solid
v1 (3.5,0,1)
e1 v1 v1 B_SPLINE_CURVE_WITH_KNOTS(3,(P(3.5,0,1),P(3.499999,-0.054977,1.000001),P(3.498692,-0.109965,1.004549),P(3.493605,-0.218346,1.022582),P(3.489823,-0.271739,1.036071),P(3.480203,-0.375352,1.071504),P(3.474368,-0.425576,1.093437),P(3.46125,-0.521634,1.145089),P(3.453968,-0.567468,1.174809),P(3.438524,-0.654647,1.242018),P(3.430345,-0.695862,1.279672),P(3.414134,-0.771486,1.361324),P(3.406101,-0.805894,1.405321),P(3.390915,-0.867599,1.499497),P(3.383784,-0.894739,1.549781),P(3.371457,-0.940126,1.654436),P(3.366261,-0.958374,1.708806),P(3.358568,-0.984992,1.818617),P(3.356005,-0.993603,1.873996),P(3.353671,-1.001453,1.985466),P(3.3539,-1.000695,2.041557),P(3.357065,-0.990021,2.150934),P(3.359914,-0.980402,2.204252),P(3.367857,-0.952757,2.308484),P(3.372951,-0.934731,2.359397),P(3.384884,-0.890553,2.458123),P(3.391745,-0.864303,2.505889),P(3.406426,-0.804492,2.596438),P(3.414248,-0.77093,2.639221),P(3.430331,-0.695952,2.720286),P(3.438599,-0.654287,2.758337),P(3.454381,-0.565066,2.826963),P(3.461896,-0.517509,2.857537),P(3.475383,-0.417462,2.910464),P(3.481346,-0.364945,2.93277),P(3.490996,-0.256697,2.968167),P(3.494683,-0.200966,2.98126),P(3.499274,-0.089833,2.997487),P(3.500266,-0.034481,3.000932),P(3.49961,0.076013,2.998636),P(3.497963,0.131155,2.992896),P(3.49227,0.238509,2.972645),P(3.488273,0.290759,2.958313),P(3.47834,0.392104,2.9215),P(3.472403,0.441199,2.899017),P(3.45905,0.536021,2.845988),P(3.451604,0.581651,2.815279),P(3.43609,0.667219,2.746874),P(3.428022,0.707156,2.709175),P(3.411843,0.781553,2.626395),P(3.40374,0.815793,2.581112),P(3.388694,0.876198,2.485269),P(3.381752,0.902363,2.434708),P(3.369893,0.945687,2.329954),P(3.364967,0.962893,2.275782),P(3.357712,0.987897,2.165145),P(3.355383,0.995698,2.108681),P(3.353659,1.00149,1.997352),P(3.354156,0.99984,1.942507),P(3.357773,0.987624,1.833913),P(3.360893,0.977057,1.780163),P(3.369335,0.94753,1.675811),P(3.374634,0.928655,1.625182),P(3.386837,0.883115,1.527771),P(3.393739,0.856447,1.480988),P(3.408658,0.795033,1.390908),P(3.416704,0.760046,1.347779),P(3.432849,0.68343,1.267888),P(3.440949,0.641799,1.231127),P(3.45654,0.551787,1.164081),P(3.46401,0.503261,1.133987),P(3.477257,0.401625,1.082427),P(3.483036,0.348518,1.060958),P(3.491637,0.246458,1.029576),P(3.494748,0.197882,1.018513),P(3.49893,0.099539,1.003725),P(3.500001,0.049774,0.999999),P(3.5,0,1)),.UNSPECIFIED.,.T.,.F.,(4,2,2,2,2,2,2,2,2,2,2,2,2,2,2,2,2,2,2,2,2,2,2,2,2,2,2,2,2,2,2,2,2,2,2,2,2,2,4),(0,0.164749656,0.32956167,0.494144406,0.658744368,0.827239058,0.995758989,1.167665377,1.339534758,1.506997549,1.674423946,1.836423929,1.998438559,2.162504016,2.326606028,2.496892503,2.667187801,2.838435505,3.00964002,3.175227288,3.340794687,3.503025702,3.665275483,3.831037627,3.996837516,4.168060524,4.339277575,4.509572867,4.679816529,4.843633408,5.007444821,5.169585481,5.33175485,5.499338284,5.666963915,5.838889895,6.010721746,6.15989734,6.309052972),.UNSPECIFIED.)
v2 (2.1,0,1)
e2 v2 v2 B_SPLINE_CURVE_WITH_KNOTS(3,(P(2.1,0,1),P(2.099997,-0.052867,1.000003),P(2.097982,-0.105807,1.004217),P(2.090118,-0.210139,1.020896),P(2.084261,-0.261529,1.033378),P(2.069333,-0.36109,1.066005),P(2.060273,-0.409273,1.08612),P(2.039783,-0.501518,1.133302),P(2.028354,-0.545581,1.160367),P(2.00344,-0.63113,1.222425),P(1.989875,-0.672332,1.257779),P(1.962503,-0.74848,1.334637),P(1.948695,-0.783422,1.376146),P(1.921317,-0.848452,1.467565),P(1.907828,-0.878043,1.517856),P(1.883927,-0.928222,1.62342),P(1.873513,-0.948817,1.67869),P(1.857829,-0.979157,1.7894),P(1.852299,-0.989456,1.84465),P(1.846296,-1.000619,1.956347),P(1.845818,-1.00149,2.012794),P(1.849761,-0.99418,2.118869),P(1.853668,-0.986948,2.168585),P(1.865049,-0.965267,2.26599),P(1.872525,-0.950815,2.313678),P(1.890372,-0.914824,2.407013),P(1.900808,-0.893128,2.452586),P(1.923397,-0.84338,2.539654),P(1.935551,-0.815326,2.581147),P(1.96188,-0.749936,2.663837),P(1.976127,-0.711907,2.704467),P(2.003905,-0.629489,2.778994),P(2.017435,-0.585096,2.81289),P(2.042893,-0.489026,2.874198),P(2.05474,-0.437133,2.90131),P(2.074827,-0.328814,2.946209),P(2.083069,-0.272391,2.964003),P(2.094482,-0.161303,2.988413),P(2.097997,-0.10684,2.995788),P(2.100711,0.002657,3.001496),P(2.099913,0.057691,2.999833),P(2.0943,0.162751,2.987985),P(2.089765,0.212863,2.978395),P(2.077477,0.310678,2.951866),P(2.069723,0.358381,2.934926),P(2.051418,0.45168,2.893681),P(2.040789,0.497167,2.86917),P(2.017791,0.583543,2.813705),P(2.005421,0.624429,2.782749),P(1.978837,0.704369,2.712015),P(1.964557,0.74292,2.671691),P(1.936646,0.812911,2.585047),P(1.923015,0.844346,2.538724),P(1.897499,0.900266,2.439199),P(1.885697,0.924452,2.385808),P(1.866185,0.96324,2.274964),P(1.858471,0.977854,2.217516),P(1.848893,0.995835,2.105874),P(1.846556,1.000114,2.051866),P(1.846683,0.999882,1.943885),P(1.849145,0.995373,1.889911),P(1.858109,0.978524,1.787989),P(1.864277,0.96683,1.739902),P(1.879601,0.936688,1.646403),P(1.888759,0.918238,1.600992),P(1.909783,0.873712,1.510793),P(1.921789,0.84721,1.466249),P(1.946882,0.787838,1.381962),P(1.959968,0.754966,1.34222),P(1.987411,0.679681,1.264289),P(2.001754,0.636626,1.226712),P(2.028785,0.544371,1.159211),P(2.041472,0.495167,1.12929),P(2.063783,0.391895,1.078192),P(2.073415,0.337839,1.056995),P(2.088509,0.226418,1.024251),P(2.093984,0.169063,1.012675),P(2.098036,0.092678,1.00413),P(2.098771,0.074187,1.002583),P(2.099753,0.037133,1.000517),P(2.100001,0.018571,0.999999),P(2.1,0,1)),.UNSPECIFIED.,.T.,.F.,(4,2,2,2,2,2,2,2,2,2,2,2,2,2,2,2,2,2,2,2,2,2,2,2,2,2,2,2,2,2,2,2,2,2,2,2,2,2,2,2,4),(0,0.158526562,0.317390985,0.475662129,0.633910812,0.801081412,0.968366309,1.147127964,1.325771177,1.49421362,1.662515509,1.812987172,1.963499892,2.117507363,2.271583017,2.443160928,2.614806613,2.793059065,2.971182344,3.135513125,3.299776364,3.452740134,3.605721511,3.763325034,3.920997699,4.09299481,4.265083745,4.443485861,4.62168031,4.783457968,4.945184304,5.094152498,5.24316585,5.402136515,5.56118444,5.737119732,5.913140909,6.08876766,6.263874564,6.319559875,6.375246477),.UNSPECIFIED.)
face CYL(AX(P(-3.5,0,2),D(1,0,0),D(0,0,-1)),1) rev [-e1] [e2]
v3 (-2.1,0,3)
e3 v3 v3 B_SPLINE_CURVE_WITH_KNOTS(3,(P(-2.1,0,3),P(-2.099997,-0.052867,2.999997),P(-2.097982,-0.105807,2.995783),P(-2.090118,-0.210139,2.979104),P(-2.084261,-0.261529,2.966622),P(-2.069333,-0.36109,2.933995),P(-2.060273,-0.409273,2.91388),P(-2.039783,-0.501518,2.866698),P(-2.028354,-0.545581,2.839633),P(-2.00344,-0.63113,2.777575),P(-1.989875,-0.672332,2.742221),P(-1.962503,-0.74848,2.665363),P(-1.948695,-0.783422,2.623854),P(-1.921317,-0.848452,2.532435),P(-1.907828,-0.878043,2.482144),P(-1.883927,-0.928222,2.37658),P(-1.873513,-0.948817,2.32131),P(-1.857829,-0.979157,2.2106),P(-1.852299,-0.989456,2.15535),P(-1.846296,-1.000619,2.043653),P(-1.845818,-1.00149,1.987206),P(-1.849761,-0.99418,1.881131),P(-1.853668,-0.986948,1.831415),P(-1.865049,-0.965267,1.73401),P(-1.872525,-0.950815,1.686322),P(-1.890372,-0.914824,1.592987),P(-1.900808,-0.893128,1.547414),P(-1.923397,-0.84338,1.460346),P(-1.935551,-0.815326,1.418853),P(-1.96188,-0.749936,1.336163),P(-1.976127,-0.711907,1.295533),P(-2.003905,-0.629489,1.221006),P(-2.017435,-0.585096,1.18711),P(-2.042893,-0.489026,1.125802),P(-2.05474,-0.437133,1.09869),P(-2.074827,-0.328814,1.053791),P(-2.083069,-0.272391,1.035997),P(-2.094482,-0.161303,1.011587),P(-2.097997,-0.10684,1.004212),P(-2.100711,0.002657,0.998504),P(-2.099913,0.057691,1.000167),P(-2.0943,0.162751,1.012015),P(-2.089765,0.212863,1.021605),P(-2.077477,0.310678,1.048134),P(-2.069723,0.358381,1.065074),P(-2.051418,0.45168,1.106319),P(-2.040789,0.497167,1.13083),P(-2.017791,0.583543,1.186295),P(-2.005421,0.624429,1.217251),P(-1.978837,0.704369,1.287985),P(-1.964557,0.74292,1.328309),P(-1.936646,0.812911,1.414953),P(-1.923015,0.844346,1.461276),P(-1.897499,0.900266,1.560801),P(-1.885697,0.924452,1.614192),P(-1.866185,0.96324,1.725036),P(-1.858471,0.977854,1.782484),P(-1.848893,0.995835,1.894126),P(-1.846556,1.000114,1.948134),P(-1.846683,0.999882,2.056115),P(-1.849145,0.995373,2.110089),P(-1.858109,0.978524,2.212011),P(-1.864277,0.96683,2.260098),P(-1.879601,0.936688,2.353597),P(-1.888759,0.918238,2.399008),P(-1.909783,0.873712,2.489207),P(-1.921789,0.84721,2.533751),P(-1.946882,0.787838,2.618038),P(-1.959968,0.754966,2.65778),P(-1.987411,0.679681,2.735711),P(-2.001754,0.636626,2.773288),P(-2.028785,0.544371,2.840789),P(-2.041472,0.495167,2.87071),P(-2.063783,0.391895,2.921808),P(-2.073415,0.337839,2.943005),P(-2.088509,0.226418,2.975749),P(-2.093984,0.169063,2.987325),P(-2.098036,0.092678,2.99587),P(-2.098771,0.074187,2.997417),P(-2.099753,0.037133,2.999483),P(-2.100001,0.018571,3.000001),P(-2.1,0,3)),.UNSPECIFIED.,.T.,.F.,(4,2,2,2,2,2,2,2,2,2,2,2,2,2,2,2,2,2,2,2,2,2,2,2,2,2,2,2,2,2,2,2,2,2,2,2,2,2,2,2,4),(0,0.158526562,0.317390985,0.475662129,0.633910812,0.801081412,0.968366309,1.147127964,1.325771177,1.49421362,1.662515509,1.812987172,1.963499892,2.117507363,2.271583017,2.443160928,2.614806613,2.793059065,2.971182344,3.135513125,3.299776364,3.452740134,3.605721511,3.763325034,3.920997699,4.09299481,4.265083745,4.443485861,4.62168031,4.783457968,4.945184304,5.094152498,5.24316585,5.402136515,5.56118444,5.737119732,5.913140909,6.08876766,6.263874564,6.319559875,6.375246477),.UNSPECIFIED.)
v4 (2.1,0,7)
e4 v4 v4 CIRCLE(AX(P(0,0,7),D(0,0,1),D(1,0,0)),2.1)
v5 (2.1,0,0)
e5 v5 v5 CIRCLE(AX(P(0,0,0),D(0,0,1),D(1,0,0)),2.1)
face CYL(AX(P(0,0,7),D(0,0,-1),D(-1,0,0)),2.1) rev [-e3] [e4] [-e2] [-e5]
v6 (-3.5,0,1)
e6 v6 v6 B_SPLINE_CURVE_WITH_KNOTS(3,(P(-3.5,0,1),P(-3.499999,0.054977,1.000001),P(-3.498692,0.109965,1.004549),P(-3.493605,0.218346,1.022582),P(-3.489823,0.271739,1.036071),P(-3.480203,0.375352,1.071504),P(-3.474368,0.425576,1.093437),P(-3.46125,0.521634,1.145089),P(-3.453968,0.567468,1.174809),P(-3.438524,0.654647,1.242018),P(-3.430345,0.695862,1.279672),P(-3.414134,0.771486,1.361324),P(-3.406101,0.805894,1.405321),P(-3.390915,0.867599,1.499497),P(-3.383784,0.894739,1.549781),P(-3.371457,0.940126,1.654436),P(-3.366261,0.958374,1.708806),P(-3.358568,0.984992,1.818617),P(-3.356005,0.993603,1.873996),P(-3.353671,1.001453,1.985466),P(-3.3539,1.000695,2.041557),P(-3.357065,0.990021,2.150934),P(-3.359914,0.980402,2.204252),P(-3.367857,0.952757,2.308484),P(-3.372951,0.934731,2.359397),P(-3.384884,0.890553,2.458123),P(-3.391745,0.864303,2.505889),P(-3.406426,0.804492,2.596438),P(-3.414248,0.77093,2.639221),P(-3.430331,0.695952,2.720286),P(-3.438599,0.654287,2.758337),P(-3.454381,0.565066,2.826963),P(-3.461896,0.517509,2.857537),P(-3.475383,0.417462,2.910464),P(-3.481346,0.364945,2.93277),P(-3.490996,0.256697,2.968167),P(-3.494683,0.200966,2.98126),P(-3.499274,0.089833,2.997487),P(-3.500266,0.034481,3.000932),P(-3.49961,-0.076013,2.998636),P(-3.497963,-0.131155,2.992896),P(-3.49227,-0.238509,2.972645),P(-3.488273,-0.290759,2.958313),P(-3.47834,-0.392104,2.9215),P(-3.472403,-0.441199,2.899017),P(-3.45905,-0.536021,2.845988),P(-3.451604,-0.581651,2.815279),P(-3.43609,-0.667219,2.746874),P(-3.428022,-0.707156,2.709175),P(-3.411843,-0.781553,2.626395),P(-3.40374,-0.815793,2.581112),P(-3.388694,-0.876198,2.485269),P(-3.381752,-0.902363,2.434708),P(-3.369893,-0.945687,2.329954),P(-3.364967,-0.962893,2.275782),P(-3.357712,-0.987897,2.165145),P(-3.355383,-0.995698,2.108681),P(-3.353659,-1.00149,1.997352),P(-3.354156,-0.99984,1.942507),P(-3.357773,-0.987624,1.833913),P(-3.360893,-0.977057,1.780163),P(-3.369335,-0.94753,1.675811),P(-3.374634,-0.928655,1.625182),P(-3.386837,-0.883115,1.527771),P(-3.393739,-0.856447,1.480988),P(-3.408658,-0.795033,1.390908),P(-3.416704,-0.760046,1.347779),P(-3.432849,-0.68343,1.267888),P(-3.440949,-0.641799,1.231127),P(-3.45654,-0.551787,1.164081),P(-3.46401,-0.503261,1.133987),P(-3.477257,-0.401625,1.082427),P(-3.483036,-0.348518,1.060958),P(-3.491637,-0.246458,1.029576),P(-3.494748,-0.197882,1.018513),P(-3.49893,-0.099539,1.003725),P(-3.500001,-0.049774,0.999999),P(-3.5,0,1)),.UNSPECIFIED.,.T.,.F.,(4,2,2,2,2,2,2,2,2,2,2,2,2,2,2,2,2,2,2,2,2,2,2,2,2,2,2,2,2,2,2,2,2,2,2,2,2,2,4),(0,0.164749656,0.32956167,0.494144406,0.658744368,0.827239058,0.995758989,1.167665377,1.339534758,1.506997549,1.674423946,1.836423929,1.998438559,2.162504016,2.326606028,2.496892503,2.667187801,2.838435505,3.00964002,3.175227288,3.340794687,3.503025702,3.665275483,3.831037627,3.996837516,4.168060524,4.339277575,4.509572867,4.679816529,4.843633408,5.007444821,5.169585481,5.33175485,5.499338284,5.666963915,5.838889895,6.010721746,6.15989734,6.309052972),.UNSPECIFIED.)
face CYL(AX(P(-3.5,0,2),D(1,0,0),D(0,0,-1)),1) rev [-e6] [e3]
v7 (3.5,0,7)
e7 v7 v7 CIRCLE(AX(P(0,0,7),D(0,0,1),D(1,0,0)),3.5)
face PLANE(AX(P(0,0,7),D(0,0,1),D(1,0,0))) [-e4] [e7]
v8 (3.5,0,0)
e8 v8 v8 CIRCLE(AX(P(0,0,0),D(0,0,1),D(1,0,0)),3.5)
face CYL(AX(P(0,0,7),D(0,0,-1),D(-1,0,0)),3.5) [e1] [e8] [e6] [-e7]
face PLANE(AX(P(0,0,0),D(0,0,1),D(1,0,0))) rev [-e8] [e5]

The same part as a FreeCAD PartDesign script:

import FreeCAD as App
import Part
import Sketcher

doc = App.newDocument("Part")
body = doc.addObject("PartDesign::Body", "Body")

# Sketch on XY plane
sketch1 = body.newObject("Sketcher::SketchObject", "Sketch")
sketch1.AttachmentSupport = (doc.getObject("XY_Plane"), [""])
sketch1.MapMode = "FlatFace"
sketch1.addGeometry([
    Part.Circle(App.Vector(0, 0, 0), App.Vector(0, 0, 1), 3.5),
    Part.Circle(App.Vector(0, 0, 0), App.Vector(0, 0, 1), 2.1),
], False)
sketch1.addConstraint([
    Sketcher.Constraint("Coincident", 0, 3, -1, 1),
    Sketcher.Constraint("Coincident", 1, 3, -1, 1),
    Sketcher.Constraint("Diameter", 0, 7.0),
    Sketcher.Constraint("Diameter", 1, 4.2),
])
pad1 = body.newObject("PartDesign::Pad", "Pad")
pad1.Profile = sketch1
pad1.Length = 7

# Sketch on YZ plane
sketch2 = body.newObject("Sketcher::SketchObject", "Sketch001")
sketch2.AttachmentSupport = (doc.getObject("YZ_Plane"), [""])
sketch2.MapMode = "FlatFace"
sketch2.AttachmentOffset = App.Placement(App.Vector(0, 0, 3.5), App.Rotation())
sketch2.addGeometry(Part.Circle(App.Vector(0, 2, 0), App.Vector(0, 0, 1), 1), False)
sketch2.addConstraint([
    Sketcher.Constraint("PointOnObject", 0, 3, -2),
    Sketcher.Constraint("Diameter", 0, 2.0),
    Sketcher.Constraint("DistanceY", -1, 1, 0, 3, 2.0),
])
pocket1 = body.newObject("PartDesign::Pocket", "Pocket")
pocket1.Profile = sketch2
pocket1.Type = "ThroughAll"
pocket1.Midplane = True

doc.recompute()
